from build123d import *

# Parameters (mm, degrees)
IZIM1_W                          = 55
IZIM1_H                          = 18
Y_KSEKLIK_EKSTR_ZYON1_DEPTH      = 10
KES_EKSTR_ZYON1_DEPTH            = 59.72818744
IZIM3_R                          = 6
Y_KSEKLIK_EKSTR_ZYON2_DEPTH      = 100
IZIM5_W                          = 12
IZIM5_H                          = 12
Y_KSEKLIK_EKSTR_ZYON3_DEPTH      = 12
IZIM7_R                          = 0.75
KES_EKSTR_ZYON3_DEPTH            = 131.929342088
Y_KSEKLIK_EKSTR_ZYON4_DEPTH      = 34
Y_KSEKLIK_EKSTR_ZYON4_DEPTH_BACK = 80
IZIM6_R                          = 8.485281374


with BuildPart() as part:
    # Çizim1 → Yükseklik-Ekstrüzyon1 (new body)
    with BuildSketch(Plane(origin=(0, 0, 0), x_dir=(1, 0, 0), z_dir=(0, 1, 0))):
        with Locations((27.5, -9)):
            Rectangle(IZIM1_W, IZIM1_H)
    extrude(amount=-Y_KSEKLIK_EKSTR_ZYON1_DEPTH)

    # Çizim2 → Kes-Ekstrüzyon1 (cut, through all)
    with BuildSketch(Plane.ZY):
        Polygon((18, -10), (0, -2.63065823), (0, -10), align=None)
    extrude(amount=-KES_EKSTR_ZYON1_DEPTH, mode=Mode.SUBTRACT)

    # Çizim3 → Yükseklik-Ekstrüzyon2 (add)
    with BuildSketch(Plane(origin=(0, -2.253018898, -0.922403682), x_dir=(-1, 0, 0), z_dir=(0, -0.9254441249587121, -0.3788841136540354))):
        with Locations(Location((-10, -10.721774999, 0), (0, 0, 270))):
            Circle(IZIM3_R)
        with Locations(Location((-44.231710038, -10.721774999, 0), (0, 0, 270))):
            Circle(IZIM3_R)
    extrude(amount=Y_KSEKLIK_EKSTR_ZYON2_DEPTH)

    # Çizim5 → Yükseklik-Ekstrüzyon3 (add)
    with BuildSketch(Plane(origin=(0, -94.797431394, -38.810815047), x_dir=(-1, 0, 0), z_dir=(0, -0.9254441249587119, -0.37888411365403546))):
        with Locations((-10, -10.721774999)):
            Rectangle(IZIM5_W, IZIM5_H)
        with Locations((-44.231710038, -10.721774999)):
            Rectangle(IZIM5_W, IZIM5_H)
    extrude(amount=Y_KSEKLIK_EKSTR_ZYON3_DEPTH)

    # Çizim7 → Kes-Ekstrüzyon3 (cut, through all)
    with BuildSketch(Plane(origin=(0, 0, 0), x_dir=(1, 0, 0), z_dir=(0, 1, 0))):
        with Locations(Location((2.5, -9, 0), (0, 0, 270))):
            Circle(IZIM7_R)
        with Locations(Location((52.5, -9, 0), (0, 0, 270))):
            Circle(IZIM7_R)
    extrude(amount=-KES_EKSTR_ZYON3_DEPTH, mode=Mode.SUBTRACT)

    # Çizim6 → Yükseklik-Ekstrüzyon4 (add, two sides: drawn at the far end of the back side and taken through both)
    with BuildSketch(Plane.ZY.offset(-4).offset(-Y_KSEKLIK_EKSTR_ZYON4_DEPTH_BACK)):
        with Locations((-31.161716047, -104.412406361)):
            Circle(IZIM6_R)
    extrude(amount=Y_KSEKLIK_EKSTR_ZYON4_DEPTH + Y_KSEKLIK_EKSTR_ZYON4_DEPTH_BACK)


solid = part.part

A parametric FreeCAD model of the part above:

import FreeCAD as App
import Part
import Sketcher
Q = App.Units.Quantity

doc = App.newDocument("Part")
body = doc.addObject("PartDesign::Body", "Body")

sketch1 = doc.addObject("Sketcher::SketchObject", "Sketch")
body.addObject(sketch1)
sketch1.AttachmentSupport = (doc.XZ_Plane, [""])
sketch1.MapMode = "FlatFace"
sketch1.addGeometry([
    Part.LineSegment(App.Vector(0, 0, 0), App.Vector(0, 18, 0)),
    Part.LineSegment(App.Vector(0, 18, 0), App.Vector(55, 18, 0)),
    Part.LineSegment(App.Vector(55, 18, 0), App.Vector(55, 0, 0)),
    Part.LineSegment(App.Vector(55, 0, 0), App.Vector(0, 0, 0)),
], False)
sketch1.addConstraint([
    Sketcher.Constraint("Coincident", 0, 2, 1, 1),
    Sketcher.Constraint("Coincident", 1, 2, 2, 1),
    Sketcher.Constraint("Coincident", 2, 2, 3, 1),
    Sketcher.Constraint("Coincident", 3, 2, 0, 1),
    Sketcher.Constraint("Vertical", 0),
    Sketcher.Constraint("Horizontal", 1),
    Sketcher.Constraint("Vertical", 2),
    Sketcher.Constraint("Horizontal", 3),
    Sketcher.Constraint("Coincident", 3, 2, -1, 1),
    Sketcher.Constraint("DistanceX", 1, 1, 1, 2, Q("55 mm")),
    Sketcher.Constraint("DistanceY", 0, 1, 0, 2, Q("18 mm")),
])
pad1 = doc.addObject("PartDesign::Pad", "Pad")
body.addObject(pad1)
pad1.Profile = sketch1
pad1.Length = 10

sketch2 = doc.addObject("Sketcher::SketchObject", "Sketch001")
body.addObject(sketch2)
sketch2.AttachmentSupport = (doc.YZ_Plane, [""])
sketch2.MapMode = "FlatFace"
sketch2.addGeometry([
    Part.LineSegment(App.Vector(-10, 18, 0), App.Vector(-3, 0, 0)),
    Part.LineSegment(App.Vector(-3, 0, 0), App.Vector(-10, 0, 0)),
    Part.LineSegment(App.Vector(-10, 0, 0), App.Vector(-10, 18, 0)),
], False)
sketch2.addConstraint([
    Sketcher.Constraint("Coincident", 0, 2, 1, 1),
    Sketcher.Constraint("Coincident", 1, 2, 2, 1),
    Sketcher.Constraint("Coincident", 2, 2, 0, 1),
    Sketcher.Constraint("Horizontal", 1),
    Sketcher.Constraint("Vertical", 2),
    Sketcher.Constraint("PointOnObject", 0, 2, -1),
    Sketcher.Constraint("DistanceY", 2, 1, 2, 2, Q("18 mm")),
    Sketcher.Constraint("DistanceX", 1, 2, -1, 1, Q("10 mm")),
    Sketcher.Constraint("DistanceX", 1, 2, 1, 1, Q("7.369342 mm")),
])
pocket1 = doc.addObject("PartDesign::Pocket", "Pocket")
body.addObject(pocket1)
pocket1.Profile = sketch2
pocket1.Type = "ThroughAll"
pocket1.Reversed = True

sketch3 = doc.addObject("Sketcher::SketchObject", "Sketch002")
body.addObject(sketch3)
sketch3.Placement = App.Placement(App.Vector(0, -2.253019, -0.922404), App.Rotation(App.Vector(-1, 0, 0), App.Vector(0, 0.378884114, -0.925444125), App.Vector(0, -0.925444125, -0.378884114), "ZXY"))
sketch3.addGeometry([
    Part.Circle(App.Vector(-10, -11, 0), App.Vector(0, 0, 1), 6),
    Part.Circle(App.Vector(-44, -11, 0), App.Vector(0, 0, 1), 6),
], False)
sketch3.addConstraint([
    Sketcher.Constraint("Equal", 0, 1),
    Sketcher.Constraint("Horizontal", 0, 3, 1, 3),
    Sketcher.Constraint("Diameter", 0, Q("12 mm")),
    Sketcher.Constraint("DistanceX", 0, 3, -1, 1, Q("10 mm")),
    Sketcher.Constraint("DistanceX", 1, 3, -1, 1, Q("44.23171 mm")),
    Sketcher.Constraint("DistanceY", 0, 3, -1, 1, Q("10.721775 mm")),
])
pad2 = doc.addObject("PartDesign::Pad", "Pad001")
body.addObject(pad2)
pad2.Profile = sketch3
pad2.Length = 100

sketch4 = doc.addObject("Sketcher::SketchObject", "Sketch003")
body.addObject(sketch4)
sketch4.Placement = App.Placement(App.Vector(0, -94.797431, -38.810815), App.Rotation(App.Vector(-1, 0, 0), App.Vector(0, 0.378884114, -0.925444125), App.Vector(0, -0.925444125, -0.378884114), "ZXY"))
sketch4.addGeometry([
    Part.LineSegment(App.Vector(-16, -5, 0), App.Vector(-16, -17, 0)),
    Part.LineSegment(App.Vector(-16, -17, 0), App.Vector(-4, -17, 0)),
    Part.LineSegment(App.Vector(-4, -17, 0), App.Vector(-4, -5, 0)),
    Part.LineSegment(App.Vector(-4, -5, 0), App.Vector(-16, -5, 0)),
    Part.LineSegment(App.Vector(-50, -5, 0), App.Vector(-50, -17, 0)),
    Part.LineSegment(App.Vector(-50, -17, 0), App.Vector(-38, -17, 0)),
    Part.LineSegment(App.Vector(-38, -17, 0), App.Vector(-38, -5, 0)),
    Part.LineSegment(App.Vector(-38, -5, 0), App.Vector(-50, -5, 0)),
], False)
sketch4.addConstraint([
    Sketcher.Constraint("Coincident", 0, 2, 1, 1),
    Sketcher.Constraint("Coincident", 1, 2, 2, 1),
    Sketcher.Constraint("Coincident", 2, 2, 3, 1),
    Sketcher.Constraint("Coincident", 3, 2, 0, 1),
    Sketcher.Constraint("Coincident", 4, 2, 5, 1),
    Sketcher.Constraint("Coincident", 5, 2, 6, 1),
    Sketcher.Constraint("Coincident", 6, 2, 7, 1),
    Sketcher.Constraint("Coincident", 7, 2, 4, 1),
    Sketcher.Constraint("Vertical", 0),
    Sketcher.Constraint("Horizontal", 1),
    Sketcher.Constraint("Vertical", 2),
    Sketcher.Constraint("Horizontal", 3),
    Sketcher.Constraint("Vertical", 4),
    Sketcher.Constraint("Horizontal", 5),
    Sketcher.Constraint("Vertical", 6),
    Sketcher.Constraint("Horizontal", 7),
    Sketcher.Constraint("Horizontal", 1, 2, 4, 2),
    Sketcher.Constraint("Horizontal", 3, 2, 6, 2),
    Sketcher.Constraint("Equal", 3, 5),
    Sketcher.Constraint("Equal", 7, 0),
    Sketcher.Constraint("DistanceX", 1, 1, 1, 2, Q("12 mm")),
    Sketcher.Constraint("DistanceX", 0, 2, -1, 1, Q("16 mm")),
    Sketcher.Constraint("DistanceX", 4, 2, -1, 1, Q("50.23171 mm")),
    Sketcher.Constraint("DistanceY", 0, 2, -1, 1, Q("16.721775 mm")),
])
pad3 = doc.addObject("PartDesign::Pad", "Pad002")
body.addObject(pad3)
pad3.Profile = sketch4
pad3.Length = 12

sketch5 = doc.addObject("Sketcher::SketchObject", "Sketch004")
body.addObject(sketch5)
sketch5.AttachmentSupport = (doc.XZ_Plane, [""])
sketch5.MapMode = "FlatFace"
sketch5.addGeometry([
    Part.Circle(App.Vector(2.5, 9, 0), App.Vector(0, 0, 1), 0.8),
    Part.Circle(App.Vector(52.5, 9, 0), App.Vector(0, 0, 1), 0.8),
], False)
sketch5.addConstraint([
    Sketcher.Constraint("Equal", 0, 1),
    Sketcher.Constraint("Horizontal", 0, 3, 1, 3),
    Sketcher.Constraint("Diameter", 0, Q("1.5 mm")),
    Sketcher.Constraint("DistanceY", -1, 1, 0, 3, Q("9 mm")),
    Sketcher.Constraint("DistanceX", 0, 3, 1, 3, Q("50 mm")),
    Sketcher.Constraint("DistanceX", -1, 1, 0, 3, Q("2.5 mm")),
])
pocket2 = doc.addObject("PartDesign::Pocket", "Pocket001")
body.addObject(pocket2)
pocket2.Profile = sketch5
pocket2.Type = "ThroughAll"
pocket2.Reversed = True

sketch6 = doc.addObject("Sketcher::SketchObject", "Sketch005")
body.addObject(sketch6)
sketch6.AttachmentSupport = (doc.YZ_Plane, [""])
sketch6.MapMode = "FlatFace"
sketch6.AttachmentOffset = App.Placement(App.Vector(0, 0, 4), App.Rotation())
sketch6.addGeometry(Part.Circle(App.Vector(-104, -31, 0), App.Vector(0, 0, 1), 8), False)
sketch6.addConstraint([
    Sketcher.Constraint("Diameter", 0, Q("16.970563 mm")),
    Sketcher.Constraint("DistanceX", 0, 3, -1, 1, Q("104.412406 mm")),
    Sketcher.Constraint("DistanceY", 0, 3, -1, 1, Q("31.161716 mm")),
])
pad4 = doc.addObject("PartDesign::Pad", "Pad003")
body.addObject(pad4)
pad4.Profile = sketch6
pad4.Type = "TwoLengths"
pad4.Length = 34
pad4.Length2 = 80
pad4.Reversed = True

doc.recompute()
